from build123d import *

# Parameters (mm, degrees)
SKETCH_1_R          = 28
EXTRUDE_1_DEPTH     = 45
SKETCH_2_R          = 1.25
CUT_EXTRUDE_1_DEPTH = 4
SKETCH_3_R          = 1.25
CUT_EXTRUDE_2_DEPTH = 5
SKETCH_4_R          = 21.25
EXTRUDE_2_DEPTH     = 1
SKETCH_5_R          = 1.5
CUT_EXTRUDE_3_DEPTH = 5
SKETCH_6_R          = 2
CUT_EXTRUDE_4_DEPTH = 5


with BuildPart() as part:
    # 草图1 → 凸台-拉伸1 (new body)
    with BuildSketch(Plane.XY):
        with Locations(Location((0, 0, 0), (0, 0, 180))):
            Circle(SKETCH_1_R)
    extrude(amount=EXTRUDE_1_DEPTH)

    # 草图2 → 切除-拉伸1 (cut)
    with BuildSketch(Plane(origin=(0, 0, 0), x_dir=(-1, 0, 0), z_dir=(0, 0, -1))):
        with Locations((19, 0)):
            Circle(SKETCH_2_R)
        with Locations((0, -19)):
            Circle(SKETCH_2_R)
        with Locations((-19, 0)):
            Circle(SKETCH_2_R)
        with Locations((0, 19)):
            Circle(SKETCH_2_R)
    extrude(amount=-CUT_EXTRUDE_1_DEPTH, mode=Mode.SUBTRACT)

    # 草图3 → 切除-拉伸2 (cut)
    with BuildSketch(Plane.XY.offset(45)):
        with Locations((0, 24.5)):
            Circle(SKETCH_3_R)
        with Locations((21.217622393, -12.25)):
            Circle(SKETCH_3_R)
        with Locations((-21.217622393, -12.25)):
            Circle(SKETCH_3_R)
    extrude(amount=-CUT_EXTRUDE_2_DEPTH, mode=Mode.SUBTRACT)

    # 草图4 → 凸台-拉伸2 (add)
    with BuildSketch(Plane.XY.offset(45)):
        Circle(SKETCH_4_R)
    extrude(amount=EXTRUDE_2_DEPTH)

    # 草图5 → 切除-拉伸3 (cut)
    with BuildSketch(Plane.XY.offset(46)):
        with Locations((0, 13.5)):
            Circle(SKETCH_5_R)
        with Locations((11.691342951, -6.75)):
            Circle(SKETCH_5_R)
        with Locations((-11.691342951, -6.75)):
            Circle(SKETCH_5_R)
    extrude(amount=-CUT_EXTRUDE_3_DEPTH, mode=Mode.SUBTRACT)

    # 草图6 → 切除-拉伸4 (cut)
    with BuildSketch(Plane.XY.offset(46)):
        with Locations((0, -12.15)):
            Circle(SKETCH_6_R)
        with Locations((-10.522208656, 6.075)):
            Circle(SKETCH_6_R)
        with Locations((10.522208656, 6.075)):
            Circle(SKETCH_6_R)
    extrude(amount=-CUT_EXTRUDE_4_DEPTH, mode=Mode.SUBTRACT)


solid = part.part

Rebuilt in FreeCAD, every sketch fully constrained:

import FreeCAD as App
import Part
import Sketcher
from FreeCAD import Vector

doc = App.newDocument("Part")
body = doc.addObject("PartDesign::Body", "Body")

# Sketch on XY plane
sketch1 = body.newObject("Sketcher::SketchObject", "Sketch")
sketch1.AttachmentSupport = (doc.getObject("XY_Plane"), [""])
sketch1.MapMode = "FlatFace"
sketch1.addGeometry(Part.Circle(Vector(0, 0, 0), Vector(0, 0, 1), 28), False)
sketch1.addConstraint([
    Sketcher.Constraint("Coincident", 0, 3, -1, 1),
    Sketcher.Constraint("Diameter", 0, 56.0),
])
pad1 = body.newObject("PartDesign::Pad", "Pad")
pad1.Profile = sketch1
pad1.Length = 45

# Sketch on XY plane
sketch2 = body.newObject("Sketcher::SketchObject", "Sketch001")
sketch2.AttachmentSupport = (doc.getObject("XY_Plane"), [""])
sketch2.MapMode = "FlatFace"
sketch2.addGeometry([
    Part.Circle(Vector(-19, 0, 0), Vector(0, 0, 1), 1.2),
    Part.Circle(Vector(0, -19, 0), Vector(0, 0, 1), 1.2),
    Part.Circle(Vector(19, 0, 0), Vector(0, 0, 1), 1.2),
    Part.Circle(Vector(0, 19, 0), Vector(0, 0, 1), 1.2),
], False)
sketch2.addConstraint([
    Sketcher.Constraint("Equal", 0, 1),
    Sketcher.Constraint("Equal", 1, 2),
    Sketcher.Constraint("Equal", 2, 3),
    Sketcher.Constraint("Symmetric", 0, 3, 2, 3, -1, 1),
    Sketcher.Constraint("Symmetric", 1, 3, 3, 3, -1, 1),
    Sketcher.Constraint("PointOnObject", 0, 3, -1),
    Sketcher.Constraint("PointOnObject", 1, 3, -2),
    Sketcher.Constraint("Diameter", 0, 2.5),
    Sketcher.Constraint("DistanceX", 0, 3, -1, 1, 19.0),
    Sketcher.Constraint("DistanceY", 1, 3, -1, 1, 19.0),
])
pocket1 = body.newObject("PartDesign::Pocket", "Pocket")
pocket1.Profile = sketch2
pocket1.Length = 4
pocket1.Reversed = True

# Sketch on XY plane
sketch3 = body.newObject("Sketcher::SketchObject", "Sketch002")
sketch3.AttachmentSupport = (doc.getObject("XY_Plane"), [""])
sketch3.MapMode = "FlatFace"
sketch3.AttachmentOffset = App.Placement(Vector(0, 0, 45), App.Rotation())
sketch3.addGeometry([
    Part.Circle(Vector(0, 24.5, 0), Vector(0, 0, 1), 1.2),
    Part.Circle(Vector(21.2, -12.2, 0), Vector(0, 0, 1), 1.2),
    Part.Circle(Vector(-21.2, -12.2, 0), Vector(0, 0, 1), 1.2),
], False)
sketch3.addConstraint([
    Sketcher.Constraint("Equal", 0, 1),
    Sketcher.Constraint("Equal", 1, 2),
    Sketcher.Constraint("Symmetric", 1, 3, 2, 3, -2),
    Sketcher.Constraint("PointOnObject", 0, 3, -2),
    Sketcher.Constraint("Diameter", 0, 2.5),
    Sketcher.Constraint("DistanceY", -1, 1, 0, 3, 24.5),
    Sketcher.Constraint("DistanceY", 1, 3, -1, 1, 12.25),
    Sketcher.Constraint("DistanceX", -1, 1, 1, 3, 21.217622),
])
pocket2 = body.newObject("PartDesign::Pocket", "Pocket001")
pocket2.Profile = sketch3
pocket2.Length = 5

# Sketch on XY plane
sketch4 = body.newObject("Sketcher::SketchObject", "Sketch003")
sketch4.AttachmentSupport = (doc.getObject("XY_Plane"), [""])
sketch4.MapMode = "FlatFace"
sketch4.AttachmentOffset = App.Placement(Vector(0, 0, 45), App.Rotation())
sketch4.addGeometry(Part.Circle(Vector(0, 0, 0), Vector(0, 0, 1), 21), False)
sketch4.addConstraint([
    Sketcher.Constraint("Coincident", 0, 3, -1, 1),
    Sketcher.Constraint("Diameter", 0, 42.5),
])
pad2 = body.newObject("PartDesign::Pad", "Pad001")
pad2.Profile = sketch4
pad2.Length = 1

# Sketch on XY plane
sketch5 = body.newObject("Sketcher::SketchObject", "Sketch004")
sketch5.AttachmentSupport = (doc.getObject("XY_Plane"), [""])
sketch5.MapMode = "FlatFace"
sketch5.AttachmentOffset = App.Placement(Vector(0, 0, 46), App.Rotation())
sketch5.addGeometry([
    Part.Circle(Vector(0, 13.5, 0), Vector(0, 0, 1), 1.5),
    Part.Circle(Vector(11.7, -6.8, 0), Vector(0, 0, 1), 1.5),
    Part.Circle(Vector(-11.7, -6.8, 0), Vector(0, 0, 1), 1.5),
], False)
sketch5.addConstraint([
    Sketcher.Constraint("Equal", 0, 1),
    Sketcher.Constraint("Equal", 1, 2),
    Sketcher.Constraint("Symmetric", 1, 3, 2, 3, -2),
    Sketcher.Constraint("PointOnObject", 0, 3, -2),
    Sketcher.Constraint("Diameter", 0, 3.0),
    Sketcher.Constraint("DistanceY", -1, 1, 0, 3, 13.5),
    Sketcher.Constraint("DistanceY", 1, 3, -1, 1, 6.75),
    Sketcher.Constraint("DistanceX", -1, 1, 1, 3, 11.691343),
])
pocket3 = body.newObject("PartDesign::Pocket", "Pocket002")
pocket3.Profile = sketch5
pocket3.Length = 5

# Sketch on XY plane
sketch6 = body.newObject("Sketcher::SketchObject", "Sketch005")
sketch6.AttachmentSupport = (doc.getObject("XY_Plane"), [""])
sketch6.MapMode = "FlatFace"
sketch6.AttachmentOffset = App.Placement(Vector(0, 0, 46), App.Rotation())
sketch6.addGeometry([
    Part.Circle(Vector(0, -12.2, 0), Vector(0, 0, 1), 2),
    Part.Circle(Vector(-10.5, 6.1, 0), Vector(0, 0, 1), 2),
    Part.Circle(Vector(10.5, 6.1, 0), Vector(0, 0, 1), 2),
], False)
sketch6.addConstraint([
    Sketcher.Constraint("Equal", 0, 1),
    Sketcher.Constraint("Equal", 1, 2),
    Sketcher.Constraint("Symmetric", 1, 3, 2, 3, -2),
    Sketcher.Constraint("PointOnObject", 0, 3, -2),
    Sketcher.Constraint("Diameter", 0, 4.0),
    Sketcher.Constraint("DistanceY", 0, 3, -1, 1, 12.15),
    Sketcher.Constraint("DistanceY", -1, 1, 1, 3, 6.075),
    Sketcher.Constraint("DistanceX", 1, 3, -1, 1, 10.522209),
])
pocket4 = body.newObject("PartDesign::Pocket", "Pocket003")
pocket4.Profile = sketch6
pocket4.Length = 5

doc.recompute()
